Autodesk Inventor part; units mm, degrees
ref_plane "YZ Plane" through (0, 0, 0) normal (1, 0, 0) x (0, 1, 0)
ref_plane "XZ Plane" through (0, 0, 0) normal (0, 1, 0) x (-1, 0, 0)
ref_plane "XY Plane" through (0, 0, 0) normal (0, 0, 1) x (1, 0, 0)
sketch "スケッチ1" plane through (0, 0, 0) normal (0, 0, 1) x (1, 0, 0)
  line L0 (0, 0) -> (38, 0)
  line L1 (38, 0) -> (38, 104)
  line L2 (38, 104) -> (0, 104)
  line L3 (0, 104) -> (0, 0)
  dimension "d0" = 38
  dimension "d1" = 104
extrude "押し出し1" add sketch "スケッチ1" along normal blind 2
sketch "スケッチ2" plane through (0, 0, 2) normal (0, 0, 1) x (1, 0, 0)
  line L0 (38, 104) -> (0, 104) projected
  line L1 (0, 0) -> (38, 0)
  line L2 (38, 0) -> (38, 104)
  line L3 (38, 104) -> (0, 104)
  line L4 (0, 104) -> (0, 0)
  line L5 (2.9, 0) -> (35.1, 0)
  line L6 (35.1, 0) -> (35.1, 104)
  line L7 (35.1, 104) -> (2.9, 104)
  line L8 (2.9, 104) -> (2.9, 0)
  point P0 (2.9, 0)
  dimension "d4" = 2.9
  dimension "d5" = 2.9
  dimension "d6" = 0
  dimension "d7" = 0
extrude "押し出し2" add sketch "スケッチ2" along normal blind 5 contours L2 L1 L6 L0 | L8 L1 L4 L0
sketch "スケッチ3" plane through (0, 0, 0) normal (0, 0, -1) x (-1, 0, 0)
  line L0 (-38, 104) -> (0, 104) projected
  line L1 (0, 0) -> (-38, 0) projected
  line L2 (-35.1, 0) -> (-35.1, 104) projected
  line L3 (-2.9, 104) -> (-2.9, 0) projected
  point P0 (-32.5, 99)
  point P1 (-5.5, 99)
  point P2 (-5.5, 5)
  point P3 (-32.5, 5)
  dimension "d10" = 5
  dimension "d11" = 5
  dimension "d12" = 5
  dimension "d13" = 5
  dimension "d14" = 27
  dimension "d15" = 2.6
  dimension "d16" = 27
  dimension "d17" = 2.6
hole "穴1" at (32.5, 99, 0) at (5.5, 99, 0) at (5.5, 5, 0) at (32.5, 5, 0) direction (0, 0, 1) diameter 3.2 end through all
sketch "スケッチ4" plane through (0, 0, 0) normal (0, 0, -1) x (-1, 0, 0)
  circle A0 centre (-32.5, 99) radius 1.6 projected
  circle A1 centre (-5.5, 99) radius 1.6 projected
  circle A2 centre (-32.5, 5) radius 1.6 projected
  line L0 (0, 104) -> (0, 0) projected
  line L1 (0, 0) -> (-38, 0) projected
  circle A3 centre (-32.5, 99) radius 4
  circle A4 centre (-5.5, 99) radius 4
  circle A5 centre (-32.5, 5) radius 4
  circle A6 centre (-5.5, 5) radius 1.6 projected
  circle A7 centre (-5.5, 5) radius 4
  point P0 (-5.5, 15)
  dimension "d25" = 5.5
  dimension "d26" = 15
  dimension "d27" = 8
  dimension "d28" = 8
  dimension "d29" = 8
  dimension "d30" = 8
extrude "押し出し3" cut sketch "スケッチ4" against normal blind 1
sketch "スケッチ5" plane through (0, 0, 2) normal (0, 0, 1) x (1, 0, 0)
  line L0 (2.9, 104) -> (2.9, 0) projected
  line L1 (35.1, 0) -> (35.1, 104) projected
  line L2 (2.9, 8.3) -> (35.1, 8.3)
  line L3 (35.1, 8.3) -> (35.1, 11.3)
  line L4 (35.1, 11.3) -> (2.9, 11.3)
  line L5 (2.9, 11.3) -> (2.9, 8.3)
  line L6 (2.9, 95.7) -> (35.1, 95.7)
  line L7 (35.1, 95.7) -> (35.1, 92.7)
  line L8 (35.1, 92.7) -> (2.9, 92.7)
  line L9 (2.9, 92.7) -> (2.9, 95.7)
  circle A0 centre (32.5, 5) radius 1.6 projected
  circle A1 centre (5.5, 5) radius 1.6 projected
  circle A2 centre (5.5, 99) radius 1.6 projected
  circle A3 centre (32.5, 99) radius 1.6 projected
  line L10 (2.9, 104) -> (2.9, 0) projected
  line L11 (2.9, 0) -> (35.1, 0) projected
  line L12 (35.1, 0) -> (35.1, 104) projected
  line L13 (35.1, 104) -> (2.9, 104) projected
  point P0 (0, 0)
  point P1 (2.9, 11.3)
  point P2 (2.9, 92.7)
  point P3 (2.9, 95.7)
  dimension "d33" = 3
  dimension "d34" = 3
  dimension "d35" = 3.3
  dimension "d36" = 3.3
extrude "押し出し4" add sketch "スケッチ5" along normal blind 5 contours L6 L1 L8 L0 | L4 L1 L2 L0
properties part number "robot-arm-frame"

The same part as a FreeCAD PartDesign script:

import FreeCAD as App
import Part
import Sketcher

V = App.Vector
Q = App.Units.Quantity


def add_polygon(sketch, points):
    """Adds a closed chain of lines whose ends are joined by coincident constraints."""
    first, n = sketch.GeometryCount, len(points)
    for a, b in zip(points, points[1:] + points[:1]):
        sketch.addGeometry(Part.LineSegment(App.Vector(*a, 0), App.Vector(*b, 0)), False)
    for i in range(n):
        sketch.addConstraint(Sketcher.Constraint("Coincident", first + i, 2, first + (i + 1) % n, 1))

doc = App.newDocument("Part")
body = doc.addObject("PartDesign::Body", "Body")

sketch1 = body.newObject("Sketcher::SketchObject", "Sketch")
sketch1.AttachmentSupport = (doc.getObject("XY_Plane"), [""])
sketch1.MapMode = "FlatFace"
add_polygon(sketch1, [(0, 104), (0, 0), (38, 0), (38, 104)])
sketch1.addConstraint([
    Sketcher.Constraint("Vertical", 0),
    Sketcher.Constraint("Horizontal", 1),
    Sketcher.Constraint("Vertical", 2),
    Sketcher.Constraint("Horizontal", 3),
    Sketcher.Constraint("Coincident", 0, 2, -1, 1),
    Sketcher.Constraint("DistanceX", 1, 1, 1, 2, Q("38 mm")),
    Sketcher.Constraint("DistanceY", 0, 2, 0, 1, Q("104 mm")),
])
pad1 = body.newObject("PartDesign::Pad", "Pad")
pad1.Profile = sketch1
pad1.Length = 2

sketch2 = body.newObject("Sketcher::SketchObject", "Sketch001")
sketch2.AttachmentSupport = (doc.getObject("XY_Plane"), [""])
sketch2.MapMode = "FlatFace"
sketch2.AttachmentOffset = App.Placement(V(0, 0, 2), App.Rotation())
add_polygon(sketch2, [(38, 0), (38, 104), (35.1, 104), (35.1, 0)])
add_polygon(sketch2, [(2.9, 0), (2.9, 104), (0, 104), (0, 0)])
sketch2.addConstraint([
    Sketcher.Constraint("Vertical", 0),
    Sketcher.Constraint("Horizontal", 1),
    Sketcher.Constraint("Vertical", 2),
    Sketcher.Constraint("Horizontal", 3),
    Sketcher.Constraint("Vertical", 4),
    Sketcher.Constraint("Horizontal", 5),
    Sketcher.Constraint("Vertical", 6),
    Sketcher.Constraint("Horizontal", 7),
    Sketcher.Constraint("Coincident", 6, 2, -1, 1),
    Sketcher.Constraint("PointOnObject", 2, 2, -1),
    Sketcher.Constraint("Horizontal", 1, 2, 4, 2),
    Sketcher.Constraint("Equal", 3, 5),
    Sketcher.Constraint("DistanceX", 1, 2, 1, 1, Q("2.9 mm")),
    Sketcher.Constraint("DistanceY", 0, 1, 0, 2, Q("104 mm")),
    Sketcher.Constraint("DistanceX", -1, 1, 0, 2, Q("38 mm")),
])
pad2 = body.newObject("PartDesign::Pad", "Pad001")
pad2.Profile = sketch2
pad2.Length = 5

sketch3 = body.newObject("Sketcher::SketchObject", "Sketch002")
sketch3.AttachmentSupport = (doc.getObject("XY_Plane"), [""])
sketch3.MapMode = "FlatFace"
sketch3.addGeometry([
    Part.Circle(V(32.5, 99, 0), V(0, 0, 1), 1.6),
    Part.Circle(V(5.5, 99, 0), V(0, 0, 1), 1.6),
    Part.Circle(V(5.5, 5, 0), V(0, 0, 1), 1.6),
    Part.Circle(V(32.5, 5, 0), V(0, 0, 1), 1.6),
], False)
sketch3.addConstraint([
    Sketcher.Constraint("Equal", 0, 1),
    Sketcher.Constraint("Equal", 1, 2),
    Sketcher.Constraint("Equal", 2, 3),
    Sketcher.Constraint("Horizontal", 0, 3, 1, 3),
    Sketcher.Constraint("Horizontal", 2, 3, 3, 3),
    Sketcher.Constraint("Vertical", 1, 3, 2, 3),
    Sketcher.Constraint("Vertical", 0, 3, 3, 3),
    Sketcher.Constraint("Diameter", 0, Q("3.2 mm")),
    Sketcher.Constraint("DistanceY", -1, 1, 0, 3, Q("99 mm")),
    Sketcher.Constraint("DistanceY", -1, 1, 2, 3, Q("5 mm")),
    Sketcher.Constraint("DistanceX", 1, 3, 0, 3, Q("27 mm")),
    Sketcher.Constraint("DistanceX", -1, 1, 0, 3, Q("32.5 mm")),
])
doc.recompute()
hole = body.newObject("PartDesign::Hole", "Hole")
hole.Profile = sketch3
hole.ThreadType = "None"
hole.Diameter = 3.2
hole.DepthType = "ThroughAll"
hole.Reversed = True

sketch4 = body.newObject("Sketcher::SketchObject", "Sketch003")
sketch4.AttachmentSupport = (doc.getObject("XY_Plane"), [""])
sketch4.MapMode = "FlatFace"
sketch4.addGeometry([
    Part.Circle(V(32.5, 99, 0), V(0, 0, 1), 4),
    Part.Circle(V(32.5, 99, 0), V(0, 0, 1), 1.6),
    Part.Circle(V(5.5, 99, 0), V(0, 0, 1), 4),
    Part.Circle(V(5.5, 99, 0), V(0, 0, 1), 1.6),
    Part.Circle(V(32.5, 5, 0), V(0, 0, 1), 4),
    Part.Circle(V(32.5, 5, 0), V(0, 0, 1), 1.6),
    Part.Circle(V(5.5, 5, 0), V(0, 0, 1), 4),
    Part.Circle(V(5.5, 5, 0), V(0, 0, 1), 1.6),
], False)
sketch4.addConstraint([
    Sketcher.Constraint("Coincident", 1, 3, 0, 3),
    Sketcher.Constraint("Coincident", 3, 3, 2, 3),
    Sketcher.Constraint("Coincident", 5, 3, 4, 3),
    Sketcher.Constraint("Coincident", 7, 3, 6, 3),
    Sketcher.Constraint("Equal", 0, 2),
    Sketcher.Constraint("Equal", 1, 3),
    Sketcher.Constraint("Equal", 2, 4),
    Sketcher.Constraint("Equal", 3, 5),
    Sketcher.Constraint("Equal", 4, 6),
    Sketcher.Constraint("Equal", 5, 7),
    Sketcher.Constraint("Horizontal", 1, 3, 2, 3),
    Sketcher.Constraint("Horizontal", 5, 3, 6, 3),
    Sketcher.Constraint("Vertical", 1, 3, 4, 3),
    Sketcher.Constraint("Vertical", 3, 3, 6, 3),
    Sketcher.Constraint("Diameter", 0, Q("8 mm")),
    Sketcher.Constraint("Diameter", 1, Q("3.2 mm")),
    Sketcher.Constraint("DistanceX", -1, 1, 2, 3, Q("5.5 mm")),
    Sketcher.Constraint("DistanceY", -1, 1, 0, 3, Q("99 mm")),
    Sketcher.Constraint("DistanceY", -1, 1, 4, 3, Q("5 mm")),
    Sketcher.Constraint("DistanceX", 2, 3, 0, 3, Q("27 mm")),
])
pocket1 = body.newObject("PartDesign::Pocket", "Pocket")
pocket1.Profile = sketch4
pocket1.Length = 1
pocket1.Reversed = True

sketch5 = body.newObject("Sketcher::SketchObject", "Sketch004")
sketch5.AttachmentSupport = (doc.getObject("XY_Plane"), [""])
sketch5.MapMode = "FlatFace"
sketch5.AttachmentOffset = App.Placement(V(0, 0, 2), App.Rotation())
add_polygon(sketch5, [(35.1, 95.7), (2.9, 95.7), (2.9, 92.7), (35.1, 92.7)])
add_polygon(sketch5, [(35.1, 11.3), (2.9, 11.3), (2.9, 8.3), (35.1, 8.3)])
sketch5.addConstraint([
    Sketcher.Constraint("Horizontal", 0),
    Sketcher.Constraint("Vertical", 1),
    Sketcher.Constraint("Horizontal", 2),
    Sketcher.Constraint("Vertical", 3),
    Sketcher.Constraint("Horizontal", 4),
    Sketcher.Constraint("Vertical", 5),
    Sketcher.Constraint("Horizontal", 6),
    Sketcher.Constraint("Vertical", 7),
    Sketcher.Constraint("Vertical", 1, 2, 4, 2),
    Sketcher.Constraint("Vertical", 3, 2, 6, 2),
    Sketcher.Constraint("Equal", 3, 5),
    Sketcher.Constraint("DistanceY", 1, 2, 1, 1, Q("3 mm")),
    Sketcher.Constraint("DistanceX", 0, 2, 0, 1, Q("32.2 mm")),
    Sketcher.Constraint("DistanceX", -1, 1, 0, 2, Q("2.9 mm")),
    Sketcher.Constraint("DistanceY", -1, 1, 0, 2, Q("95.7 mm")),
    Sketcher.Constraint("DistanceY", -1, 1, 4, 2, Q("11.3 mm")),
])
pad3 = body.newObject("PartDesign::Pad", "Pad002")
pad3.Profile = sketch5
pad3.Length = 5

doc.recompute()
